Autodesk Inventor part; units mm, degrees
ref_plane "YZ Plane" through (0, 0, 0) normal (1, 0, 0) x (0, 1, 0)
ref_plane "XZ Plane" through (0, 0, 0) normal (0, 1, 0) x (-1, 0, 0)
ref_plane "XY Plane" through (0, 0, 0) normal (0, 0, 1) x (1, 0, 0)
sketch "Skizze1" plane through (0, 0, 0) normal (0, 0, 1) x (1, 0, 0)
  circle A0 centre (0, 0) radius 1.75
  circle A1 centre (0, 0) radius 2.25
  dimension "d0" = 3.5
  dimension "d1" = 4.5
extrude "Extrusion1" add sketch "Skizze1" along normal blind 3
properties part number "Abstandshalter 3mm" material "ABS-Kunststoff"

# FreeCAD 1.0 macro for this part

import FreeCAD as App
import Part
import Sketcher

V = App.Vector
Q = App.Units.Quantity

doc = App.newDocument("Part")
body = doc.addObject("PartDesign::Body", "Body")

sketch1 = body.newObject("Sketcher::SketchObject", "Sketch")
sketch1.AttachmentSupport = (doc.getObject("XY_Plane"), [""])
sketch1.MapMode = "FlatFace"
sketch1.addGeometry(Part.Circle(V(0, 0, 0), V(0, 0, 1), 2.2), False)
sketch1.addGeometry(Part.Circle(V(0, 0, 0), V(0, 0, 1), 1.8), False)
sketch1.addConstraint(Sketcher.Constraint("Coincident", 0, 3, -1, 1))
sketch1.addConstraint(Sketcher.Constraint("Coincident", 1, 3, -1, 1))
sketch1.addConstraint(Sketcher.Constraint("Diameter", 0, Q("4.5 mm")))
sketch1.addConstraint(Sketcher.Constraint("Diameter", 1, Q("3.5 mm")))
pad1 = body.newObject("PartDesign::Pad", "Pad")
pad1.Profile = sketch1
pad1.Length = 3

doc.recompute()
